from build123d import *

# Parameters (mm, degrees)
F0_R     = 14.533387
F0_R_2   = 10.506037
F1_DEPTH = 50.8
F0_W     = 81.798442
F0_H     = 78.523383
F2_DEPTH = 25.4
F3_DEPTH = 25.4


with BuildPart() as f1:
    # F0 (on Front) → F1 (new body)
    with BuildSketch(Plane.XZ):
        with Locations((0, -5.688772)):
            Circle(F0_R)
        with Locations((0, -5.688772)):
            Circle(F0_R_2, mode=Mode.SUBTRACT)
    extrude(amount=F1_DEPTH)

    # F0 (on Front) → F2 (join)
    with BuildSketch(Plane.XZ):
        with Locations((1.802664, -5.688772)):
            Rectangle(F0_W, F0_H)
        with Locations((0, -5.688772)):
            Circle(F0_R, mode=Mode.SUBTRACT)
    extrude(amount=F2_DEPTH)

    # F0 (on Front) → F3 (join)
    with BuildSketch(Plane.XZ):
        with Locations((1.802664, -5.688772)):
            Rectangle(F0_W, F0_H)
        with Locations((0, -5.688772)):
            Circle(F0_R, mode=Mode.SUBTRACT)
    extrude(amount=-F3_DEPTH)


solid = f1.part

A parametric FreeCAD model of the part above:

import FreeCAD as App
import Part
import Sketcher
Q = App.Units.Quantity


def add_polygon(sketch, points):
    """Adds a closed chain of lines whose ends are joined by coincident constraints."""
    first, n = sketch.GeometryCount, len(points)
    for a, b in zip(points, points[1:] + points[:1]):
        sketch.addGeometry(Part.LineSegment(App.Vector(*a, 0), App.Vector(*b, 0)), False)
    for i in range(n):
        sketch.addConstraint(Sketcher.Constraint("Coincident", first + i, 2, first + (i + 1) % n, 1))

doc = App.newDocument("Part")
body = doc.addObject("PartDesign::Body", "Body")

sketch1 = doc.addObject("Sketcher::SketchObject", "Sketch")
body.addObject(sketch1)
sketch1.AttachmentSupport = (doc.XZ_Plane, [""])
sketch1.MapMode = "FlatFace"
sketch1.addGeometry(Part.Circle(App.Vector(0, -6, 0), App.Vector(0, 0, 1), 15), False)
sketch1.addGeometry(Part.Circle(App.Vector(0, -6, 0), App.Vector(0, 0, 1), 11), False)
sketch1.addConstraint(Sketcher.Constraint("Coincident", 1, 3, 0, 3))
sketch1.addConstraint(Sketcher.Constraint("PointOnObject", 0, 3, -2))
sketch1.addConstraint(Sketcher.Constraint("Diameter", 0, 29.066774))
sketch1.addConstraint(Sketcher.Constraint("Diameter", 1, 21.012074))
sketch1.addConstraint(Sketcher.Constraint("DistanceY", 0, 3, -1, 1, 5.688772))
pad1 = doc.addObject("PartDesign::Pad", "Pad")
body.addObject(pad1)
pad1.Profile = sketch1
pad1.Length = Q("2 in")

sketch2 = doc.addObject("Sketcher::SketchObject", "Sketch001")
body.addObject(sketch2)
sketch2.AttachmentSupport = (doc.XZ_Plane, [""])
sketch2.MapMode = "FlatFace"
add_polygon(sketch2, [(-39, 34), (-39, -45), (43, -45), (43, 34)])
sketch2.addGeometry(Part.Circle(App.Vector(0, -6, 0), App.Vector(0, 0, 1), 15), False)
sketch2.addConstraint(Sketcher.Constraint("Vertical", 0))
sketch2.addConstraint(Sketcher.Constraint("Horizontal", 1))
sketch2.addConstraint(Sketcher.Constraint("Vertical", 2))
sketch2.addConstraint(Sketcher.Constraint("Horizontal", 3))
sketch2.addConstraint(Sketcher.Constraint("PointOnObject", 4, 3, -2))
sketch2.addConstraint(Sketcher.Constraint("Diameter", 4, 29.066774))
sketch2.addConstraint(Sketcher.Constraint("DistanceX", 1, 1, 1, 2, 81.798442))
sketch2.addConstraint(Sketcher.Constraint("DistanceY", 0, 2, 0, 1, 78.523383))
sketch2.addConstraint(Sketcher.Constraint("DistanceY", -1, 1, 2, 2, 33.572919))
sketch2.addConstraint(Sketcher.Constraint("DistanceY", 0, 2, 4, 3, 39.261691))
sketch2.addConstraint(Sketcher.Constraint("DistanceX", 0, 2, -1, 1, 39.096557))
pad2 = doc.addObject("PartDesign::Pad", "Pad001")
body.addObject(pad2)
pad2.Profile = sketch2
pad2.Length = Q("1 in")

sketch3 = doc.addObject("Sketcher::SketchObject", "Sketch002")
body.addObject(sketch3)
sketch3.AttachmentSupport = (doc.XZ_Plane, [""])
sketch3.MapMode = "FlatFace"
add_polygon(sketch3, [(-39, 34), (-39, -45), (43, -45), (43, 34)])
sketch3.addGeometry(Part.Circle(App.Vector(0, -6, 0), App.Vector(0, 0, 1), 15), False)
sketch3.addConstraint(Sketcher.Constraint("Vertical", 0))
sketch3.addConstraint(Sketcher.Constraint("Horizontal", 1))
sketch3.addConstraint(Sketcher.Constraint("Vertical", 2))
sketch3.addConstraint(Sketcher.Constraint("Horizontal", 3))
sketch3.addConstraint(Sketcher.Constraint("PointOnObject", 4, 3, -2))
sketch3.addConstraint(Sketcher.Constraint("Diameter", 4, 29.066774))
sketch3.addConstraint(Sketcher.Constraint("DistanceX", 1, 1, 1, 2, 81.798442))
sketch3.addConstraint(Sketcher.Constraint("DistanceY", 0, 2, 0, 1, 78.523383))
sketch3.addConstraint(Sketcher.Constraint("DistanceY", -1, 1, 2, 2, 33.572919))
sketch3.addConstraint(Sketcher.Constraint("DistanceY", 0, 2, 4, 3, 39.261691))
sketch3.addConstraint(Sketcher.Constraint("DistanceX", 0, 2, -1, 1, 39.096557))
pad3 = doc.addObject("PartDesign::Pad", "Pad002")
body.addObject(pad3)
pad3.Profile = sketch3
pad3.Length = Q("1 in")
pad3.Reversed = True

doc.recompute()
